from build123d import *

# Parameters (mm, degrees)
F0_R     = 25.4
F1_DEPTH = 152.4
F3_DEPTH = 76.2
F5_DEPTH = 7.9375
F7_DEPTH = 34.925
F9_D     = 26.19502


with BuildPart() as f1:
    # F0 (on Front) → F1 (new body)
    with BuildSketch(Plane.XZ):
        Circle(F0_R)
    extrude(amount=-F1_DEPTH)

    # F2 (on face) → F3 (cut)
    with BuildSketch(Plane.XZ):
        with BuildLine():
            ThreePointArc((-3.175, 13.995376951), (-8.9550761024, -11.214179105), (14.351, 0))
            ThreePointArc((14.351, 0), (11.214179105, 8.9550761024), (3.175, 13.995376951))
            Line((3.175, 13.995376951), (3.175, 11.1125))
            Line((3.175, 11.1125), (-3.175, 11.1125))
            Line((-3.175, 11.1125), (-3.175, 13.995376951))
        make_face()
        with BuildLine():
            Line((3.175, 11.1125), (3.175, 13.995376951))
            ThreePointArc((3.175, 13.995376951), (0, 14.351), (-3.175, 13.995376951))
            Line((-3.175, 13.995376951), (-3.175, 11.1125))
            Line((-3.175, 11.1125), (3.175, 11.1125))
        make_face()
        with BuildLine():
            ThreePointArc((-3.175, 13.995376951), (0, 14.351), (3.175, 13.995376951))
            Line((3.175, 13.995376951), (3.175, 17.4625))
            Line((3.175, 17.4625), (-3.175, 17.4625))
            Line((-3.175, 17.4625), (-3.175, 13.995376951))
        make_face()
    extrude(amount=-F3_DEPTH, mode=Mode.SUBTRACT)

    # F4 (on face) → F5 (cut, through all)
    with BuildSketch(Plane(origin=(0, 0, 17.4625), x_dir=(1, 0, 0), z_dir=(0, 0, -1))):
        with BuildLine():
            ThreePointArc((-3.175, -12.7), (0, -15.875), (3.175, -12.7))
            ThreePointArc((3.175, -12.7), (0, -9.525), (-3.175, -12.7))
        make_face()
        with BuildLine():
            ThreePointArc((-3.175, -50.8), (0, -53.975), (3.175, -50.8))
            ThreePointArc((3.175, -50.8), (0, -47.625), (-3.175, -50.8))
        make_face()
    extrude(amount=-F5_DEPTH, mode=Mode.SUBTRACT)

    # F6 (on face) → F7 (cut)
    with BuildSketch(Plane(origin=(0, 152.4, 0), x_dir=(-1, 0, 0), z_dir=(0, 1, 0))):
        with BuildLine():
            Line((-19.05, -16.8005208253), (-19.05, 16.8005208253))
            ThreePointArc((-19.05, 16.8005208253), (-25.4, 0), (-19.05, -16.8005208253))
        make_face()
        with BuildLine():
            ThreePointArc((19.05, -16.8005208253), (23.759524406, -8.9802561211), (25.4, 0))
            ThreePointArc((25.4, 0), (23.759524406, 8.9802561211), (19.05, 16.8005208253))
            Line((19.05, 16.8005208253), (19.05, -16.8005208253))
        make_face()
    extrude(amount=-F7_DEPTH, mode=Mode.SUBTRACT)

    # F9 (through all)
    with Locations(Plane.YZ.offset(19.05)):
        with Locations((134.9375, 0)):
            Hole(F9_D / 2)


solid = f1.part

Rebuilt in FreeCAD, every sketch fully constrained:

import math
import FreeCAD as App
import Part
import Sketcher

V = App.Vector
Q = App.Units.Quantity

doc = App.newDocument("Part")
body = doc.addObject("PartDesign::Body", "Body")

# Sketch on XZ plane
sketch1 = doc.addObject("Sketcher::SketchObject", "Sketch")
body.addObject(sketch1)
sketch1.AttachmentSupport = (doc.XZ_Plane, [""])
sketch1.MapMode = "FlatFace"
sketch1.addGeometry(Part.Circle(V(0, 0, 0), V(0, 0, 1), 25), False)
sketch1.addConstraint([
    Sketcher.Constraint("Coincident", 0, 3, -1, 1),
    Sketcher.Constraint("Diameter", 0, Q("2 in")),
])
pad1 = doc.addObject("PartDesign::Pad", "Pad")
body.addObject(pad1)
pad1.Profile = sketch1
pad1.Length = Q("6 in")
pad1.Reversed = True

# Sketch on XZ plane
sketch2 = doc.addObject("Sketcher::SketchObject", "Sketch001")
body.addObject(sketch2)
sketch2.AttachmentSupport = (doc.XZ_Plane, [""])
sketch2.MapMode = "FlatFace"
sketch2.addGeometry([
    Part.ArcOfCircle(Part.Circle(V(0, 0, 0), V(0, 0, 1), 14.4), math.radians(103), math.radians(360)),  # 0
    Part.ArcOfCircle(Part.Circle(V(0, 0, 0), V(0, 0, 1), 14.4), math.radians(0), math.radians(77)),  # 1
    Part.LineSegment(V(3.2, 14, 0), V(3.2, 17.5, 0)),  # 2
    Part.LineSegment(V(3.2, 17.5, 0), V(-3.2, 17.5, 0)),  # 3
    Part.LineSegment(V(-3.2, 17.5, 0), V(-3.2, 14, 0)),  # 4
], False)
sketch2.addConstraint([
    Sketcher.Constraint("Tangent", 0, 2, 1, 1),
    Sketcher.Constraint("Coincident", 1, 2, 2, 1),
    Sketcher.Constraint("Coincident", 2, 2, 3, 1),
    Sketcher.Constraint("Coincident", 3, 2, 4, 1),
    Sketcher.Constraint("Coincident", 4, 2, 0, 1),
    Sketcher.Constraint("Vertical", 2),
    Sketcher.Constraint("Horizontal", 3),
    Sketcher.Constraint("Vertical", 4),
    Sketcher.Constraint("Coincident", 0, 3, -1, 1),
    Sketcher.Constraint("Equal", 0, 1),
    Sketcher.Constraint("PointOnObject", 0, 2, -1),
    Sketcher.Constraint("Horizontal", 1, 2, 4, 2),
    Sketcher.Constraint("Radius", 0, Q("0.565 in")),
    Sketcher.Constraint("DistanceX", 3, 2, 3, 1, Q("0.25 in")),
    Sketcher.Constraint("DistanceY", -1, 1, 2, 2, Q("0.6875 in")),
])
pocket1 = doc.addObject("PartDesign::Pocket", "Pocket")
body.addObject(pocket1)
pocket1.Profile = sketch2
pocket1.Length = Q("3 in")

# Sketch on XY plane
sketch3 = doc.addObject("Sketcher::SketchObject", "Sketch002")
body.addObject(sketch3)
sketch3.AttachmentSupport = (doc.XY_Plane, [""])
sketch3.MapMode = "FlatFace"
sketch3.AttachmentOffset = App.Placement(V(0, 0, 0.6875 * 25.4), App.Rotation())
sketch3.addGeometry([
    Part.Circle(V(0, 12.7, 0), V(0, 0, 1), 3.2),
    Part.Circle(V(0, 50.8, 0), V(0, 0, 1), 3.2),
], False)
sketch3.addConstraint([
    Sketcher.Constraint("Equal", 0, 1),
    Sketcher.Constraint("PointOnObject", 0, 3, -2),
    Sketcher.Constraint("PointOnObject", 1, 3, -2),
    Sketcher.Constraint("Diameter", 0, Q("0.25 in")),
    Sketcher.Constraint("DistanceY", -1, 1, 1, 3, Q("2 in")),
    Sketcher.Constraint("DistanceY", -1, 1, 0, 3, Q("0.5 in")),
])
pocket2 = doc.addObject("PartDesign::Pocket", "Pocket001")
body.addObject(pocket2)
pocket2.Profile = sketch3
pocket2.Type = "ThroughAll"
pocket2.Reversed = True

# Sketch on XZ plane
sketch4 = doc.addObject("Sketcher::SketchObject", "Sketch003")
body.addObject(sketch4)
sketch4.AttachmentSupport = (doc.XZ_Plane, [""])
sketch4.MapMode = "FlatFace"
sketch4.AttachmentOffset = App.Placement(V(0, 0, -6 * 25.4), App.Rotation())
sketch4.addGeometry([
    Part.LineSegment(V(19, -17, 0), V(19, 17, 0)),  # 0
    Part.ArcOfCircle(Part.Circle(V(0, 0, 0), V(0, 0, 1), 25), math.radians(-41), math.radians(41)),  # 1
    Part.ArcOfCircle(Part.Circle(V(0, 0, 0), V(0, 0, 1), 25), math.radians(180), math.radians(221)),  # 2
    Part.ArcOfCircle(Part.Circle(V(0, 0, 0), V(0, 0, 1), 25), math.radians(139), math.radians(180)),  # 3
    Part.LineSegment(V(-19, 17, 0), V(-19, -17, 0)),  # 4
], False)
sketch4.addConstraint([
    Sketcher.Constraint("Coincident", 0, 1, 1, 1),
    Sketcher.Constraint("Coincident", 1, 2, 0, 2),
    Sketcher.Constraint("Tangent", 2, 1, 3, 2),
    Sketcher.Constraint("Coincident", 3, 1, 4, 1),
    Sketcher.Constraint("Coincident", 4, 2, 2, 2),
    Sketcher.Constraint("Vertical", 0),
    Sketcher.Constraint("Vertical", 4),
    Sketcher.Constraint("Coincident", 1, 3, -1, 1),
    Sketcher.Constraint("Coincident", 2, 3, -1, 1),
    Sketcher.Constraint("Equal", 1, 2),
    Sketcher.Constraint("Equal", 2, 3),
    Sketcher.Constraint("PointOnObject", 2, 1, -1),
    Sketcher.Constraint("Horizontal", 1, 2, 3, 1),
    Sketcher.Constraint("Radius", 1, Q("1 in")),
    Sketcher.Constraint("DistanceX", 3, 1, 1, 2, Q("1.5 in")),
])
pocket3 = doc.addObject("PartDesign::Pocket", "Pocket002")
body.addObject(pocket3)
pocket3.Profile = sketch4
pocket3.Length = Q("1.375 in")
pocket3.Reversed = True

# Sketch on YZ plane
sketch5 = doc.addObject("Sketcher::SketchObject", "Sketch004")
body.addObject(sketch5)
sketch5.AttachmentSupport = (doc.YZ_Plane, [""])
sketch5.MapMode = "FlatFace"
sketch5.AttachmentOffset = App.Placement(V(0, 0, 0.75 * 25.4), App.Rotation())
sketch5.addGeometry(Part.Circle(V(135, 0, 0), V(0, 0, 1), 13), False)
sketch5.addConstraint([
    Sketcher.Constraint("PointOnObject", 0, 3, -1),
    Sketcher.Constraint("Diameter", 0, Q("1.0313 in")),
    Sketcher.Constraint("DistanceX", -1, 1, 0, 3, Q("5.3125 in")),
])
doc.recompute()
hole = doc.addObject("PartDesign::Hole", "Hole")
body.addObject(hole)
hole.Profile = sketch5
hole.ThreadType = "None"
hole.Diameter = Q("1.0313 in")
hole.DepthType = "ThroughAll"

doc.recompute()
